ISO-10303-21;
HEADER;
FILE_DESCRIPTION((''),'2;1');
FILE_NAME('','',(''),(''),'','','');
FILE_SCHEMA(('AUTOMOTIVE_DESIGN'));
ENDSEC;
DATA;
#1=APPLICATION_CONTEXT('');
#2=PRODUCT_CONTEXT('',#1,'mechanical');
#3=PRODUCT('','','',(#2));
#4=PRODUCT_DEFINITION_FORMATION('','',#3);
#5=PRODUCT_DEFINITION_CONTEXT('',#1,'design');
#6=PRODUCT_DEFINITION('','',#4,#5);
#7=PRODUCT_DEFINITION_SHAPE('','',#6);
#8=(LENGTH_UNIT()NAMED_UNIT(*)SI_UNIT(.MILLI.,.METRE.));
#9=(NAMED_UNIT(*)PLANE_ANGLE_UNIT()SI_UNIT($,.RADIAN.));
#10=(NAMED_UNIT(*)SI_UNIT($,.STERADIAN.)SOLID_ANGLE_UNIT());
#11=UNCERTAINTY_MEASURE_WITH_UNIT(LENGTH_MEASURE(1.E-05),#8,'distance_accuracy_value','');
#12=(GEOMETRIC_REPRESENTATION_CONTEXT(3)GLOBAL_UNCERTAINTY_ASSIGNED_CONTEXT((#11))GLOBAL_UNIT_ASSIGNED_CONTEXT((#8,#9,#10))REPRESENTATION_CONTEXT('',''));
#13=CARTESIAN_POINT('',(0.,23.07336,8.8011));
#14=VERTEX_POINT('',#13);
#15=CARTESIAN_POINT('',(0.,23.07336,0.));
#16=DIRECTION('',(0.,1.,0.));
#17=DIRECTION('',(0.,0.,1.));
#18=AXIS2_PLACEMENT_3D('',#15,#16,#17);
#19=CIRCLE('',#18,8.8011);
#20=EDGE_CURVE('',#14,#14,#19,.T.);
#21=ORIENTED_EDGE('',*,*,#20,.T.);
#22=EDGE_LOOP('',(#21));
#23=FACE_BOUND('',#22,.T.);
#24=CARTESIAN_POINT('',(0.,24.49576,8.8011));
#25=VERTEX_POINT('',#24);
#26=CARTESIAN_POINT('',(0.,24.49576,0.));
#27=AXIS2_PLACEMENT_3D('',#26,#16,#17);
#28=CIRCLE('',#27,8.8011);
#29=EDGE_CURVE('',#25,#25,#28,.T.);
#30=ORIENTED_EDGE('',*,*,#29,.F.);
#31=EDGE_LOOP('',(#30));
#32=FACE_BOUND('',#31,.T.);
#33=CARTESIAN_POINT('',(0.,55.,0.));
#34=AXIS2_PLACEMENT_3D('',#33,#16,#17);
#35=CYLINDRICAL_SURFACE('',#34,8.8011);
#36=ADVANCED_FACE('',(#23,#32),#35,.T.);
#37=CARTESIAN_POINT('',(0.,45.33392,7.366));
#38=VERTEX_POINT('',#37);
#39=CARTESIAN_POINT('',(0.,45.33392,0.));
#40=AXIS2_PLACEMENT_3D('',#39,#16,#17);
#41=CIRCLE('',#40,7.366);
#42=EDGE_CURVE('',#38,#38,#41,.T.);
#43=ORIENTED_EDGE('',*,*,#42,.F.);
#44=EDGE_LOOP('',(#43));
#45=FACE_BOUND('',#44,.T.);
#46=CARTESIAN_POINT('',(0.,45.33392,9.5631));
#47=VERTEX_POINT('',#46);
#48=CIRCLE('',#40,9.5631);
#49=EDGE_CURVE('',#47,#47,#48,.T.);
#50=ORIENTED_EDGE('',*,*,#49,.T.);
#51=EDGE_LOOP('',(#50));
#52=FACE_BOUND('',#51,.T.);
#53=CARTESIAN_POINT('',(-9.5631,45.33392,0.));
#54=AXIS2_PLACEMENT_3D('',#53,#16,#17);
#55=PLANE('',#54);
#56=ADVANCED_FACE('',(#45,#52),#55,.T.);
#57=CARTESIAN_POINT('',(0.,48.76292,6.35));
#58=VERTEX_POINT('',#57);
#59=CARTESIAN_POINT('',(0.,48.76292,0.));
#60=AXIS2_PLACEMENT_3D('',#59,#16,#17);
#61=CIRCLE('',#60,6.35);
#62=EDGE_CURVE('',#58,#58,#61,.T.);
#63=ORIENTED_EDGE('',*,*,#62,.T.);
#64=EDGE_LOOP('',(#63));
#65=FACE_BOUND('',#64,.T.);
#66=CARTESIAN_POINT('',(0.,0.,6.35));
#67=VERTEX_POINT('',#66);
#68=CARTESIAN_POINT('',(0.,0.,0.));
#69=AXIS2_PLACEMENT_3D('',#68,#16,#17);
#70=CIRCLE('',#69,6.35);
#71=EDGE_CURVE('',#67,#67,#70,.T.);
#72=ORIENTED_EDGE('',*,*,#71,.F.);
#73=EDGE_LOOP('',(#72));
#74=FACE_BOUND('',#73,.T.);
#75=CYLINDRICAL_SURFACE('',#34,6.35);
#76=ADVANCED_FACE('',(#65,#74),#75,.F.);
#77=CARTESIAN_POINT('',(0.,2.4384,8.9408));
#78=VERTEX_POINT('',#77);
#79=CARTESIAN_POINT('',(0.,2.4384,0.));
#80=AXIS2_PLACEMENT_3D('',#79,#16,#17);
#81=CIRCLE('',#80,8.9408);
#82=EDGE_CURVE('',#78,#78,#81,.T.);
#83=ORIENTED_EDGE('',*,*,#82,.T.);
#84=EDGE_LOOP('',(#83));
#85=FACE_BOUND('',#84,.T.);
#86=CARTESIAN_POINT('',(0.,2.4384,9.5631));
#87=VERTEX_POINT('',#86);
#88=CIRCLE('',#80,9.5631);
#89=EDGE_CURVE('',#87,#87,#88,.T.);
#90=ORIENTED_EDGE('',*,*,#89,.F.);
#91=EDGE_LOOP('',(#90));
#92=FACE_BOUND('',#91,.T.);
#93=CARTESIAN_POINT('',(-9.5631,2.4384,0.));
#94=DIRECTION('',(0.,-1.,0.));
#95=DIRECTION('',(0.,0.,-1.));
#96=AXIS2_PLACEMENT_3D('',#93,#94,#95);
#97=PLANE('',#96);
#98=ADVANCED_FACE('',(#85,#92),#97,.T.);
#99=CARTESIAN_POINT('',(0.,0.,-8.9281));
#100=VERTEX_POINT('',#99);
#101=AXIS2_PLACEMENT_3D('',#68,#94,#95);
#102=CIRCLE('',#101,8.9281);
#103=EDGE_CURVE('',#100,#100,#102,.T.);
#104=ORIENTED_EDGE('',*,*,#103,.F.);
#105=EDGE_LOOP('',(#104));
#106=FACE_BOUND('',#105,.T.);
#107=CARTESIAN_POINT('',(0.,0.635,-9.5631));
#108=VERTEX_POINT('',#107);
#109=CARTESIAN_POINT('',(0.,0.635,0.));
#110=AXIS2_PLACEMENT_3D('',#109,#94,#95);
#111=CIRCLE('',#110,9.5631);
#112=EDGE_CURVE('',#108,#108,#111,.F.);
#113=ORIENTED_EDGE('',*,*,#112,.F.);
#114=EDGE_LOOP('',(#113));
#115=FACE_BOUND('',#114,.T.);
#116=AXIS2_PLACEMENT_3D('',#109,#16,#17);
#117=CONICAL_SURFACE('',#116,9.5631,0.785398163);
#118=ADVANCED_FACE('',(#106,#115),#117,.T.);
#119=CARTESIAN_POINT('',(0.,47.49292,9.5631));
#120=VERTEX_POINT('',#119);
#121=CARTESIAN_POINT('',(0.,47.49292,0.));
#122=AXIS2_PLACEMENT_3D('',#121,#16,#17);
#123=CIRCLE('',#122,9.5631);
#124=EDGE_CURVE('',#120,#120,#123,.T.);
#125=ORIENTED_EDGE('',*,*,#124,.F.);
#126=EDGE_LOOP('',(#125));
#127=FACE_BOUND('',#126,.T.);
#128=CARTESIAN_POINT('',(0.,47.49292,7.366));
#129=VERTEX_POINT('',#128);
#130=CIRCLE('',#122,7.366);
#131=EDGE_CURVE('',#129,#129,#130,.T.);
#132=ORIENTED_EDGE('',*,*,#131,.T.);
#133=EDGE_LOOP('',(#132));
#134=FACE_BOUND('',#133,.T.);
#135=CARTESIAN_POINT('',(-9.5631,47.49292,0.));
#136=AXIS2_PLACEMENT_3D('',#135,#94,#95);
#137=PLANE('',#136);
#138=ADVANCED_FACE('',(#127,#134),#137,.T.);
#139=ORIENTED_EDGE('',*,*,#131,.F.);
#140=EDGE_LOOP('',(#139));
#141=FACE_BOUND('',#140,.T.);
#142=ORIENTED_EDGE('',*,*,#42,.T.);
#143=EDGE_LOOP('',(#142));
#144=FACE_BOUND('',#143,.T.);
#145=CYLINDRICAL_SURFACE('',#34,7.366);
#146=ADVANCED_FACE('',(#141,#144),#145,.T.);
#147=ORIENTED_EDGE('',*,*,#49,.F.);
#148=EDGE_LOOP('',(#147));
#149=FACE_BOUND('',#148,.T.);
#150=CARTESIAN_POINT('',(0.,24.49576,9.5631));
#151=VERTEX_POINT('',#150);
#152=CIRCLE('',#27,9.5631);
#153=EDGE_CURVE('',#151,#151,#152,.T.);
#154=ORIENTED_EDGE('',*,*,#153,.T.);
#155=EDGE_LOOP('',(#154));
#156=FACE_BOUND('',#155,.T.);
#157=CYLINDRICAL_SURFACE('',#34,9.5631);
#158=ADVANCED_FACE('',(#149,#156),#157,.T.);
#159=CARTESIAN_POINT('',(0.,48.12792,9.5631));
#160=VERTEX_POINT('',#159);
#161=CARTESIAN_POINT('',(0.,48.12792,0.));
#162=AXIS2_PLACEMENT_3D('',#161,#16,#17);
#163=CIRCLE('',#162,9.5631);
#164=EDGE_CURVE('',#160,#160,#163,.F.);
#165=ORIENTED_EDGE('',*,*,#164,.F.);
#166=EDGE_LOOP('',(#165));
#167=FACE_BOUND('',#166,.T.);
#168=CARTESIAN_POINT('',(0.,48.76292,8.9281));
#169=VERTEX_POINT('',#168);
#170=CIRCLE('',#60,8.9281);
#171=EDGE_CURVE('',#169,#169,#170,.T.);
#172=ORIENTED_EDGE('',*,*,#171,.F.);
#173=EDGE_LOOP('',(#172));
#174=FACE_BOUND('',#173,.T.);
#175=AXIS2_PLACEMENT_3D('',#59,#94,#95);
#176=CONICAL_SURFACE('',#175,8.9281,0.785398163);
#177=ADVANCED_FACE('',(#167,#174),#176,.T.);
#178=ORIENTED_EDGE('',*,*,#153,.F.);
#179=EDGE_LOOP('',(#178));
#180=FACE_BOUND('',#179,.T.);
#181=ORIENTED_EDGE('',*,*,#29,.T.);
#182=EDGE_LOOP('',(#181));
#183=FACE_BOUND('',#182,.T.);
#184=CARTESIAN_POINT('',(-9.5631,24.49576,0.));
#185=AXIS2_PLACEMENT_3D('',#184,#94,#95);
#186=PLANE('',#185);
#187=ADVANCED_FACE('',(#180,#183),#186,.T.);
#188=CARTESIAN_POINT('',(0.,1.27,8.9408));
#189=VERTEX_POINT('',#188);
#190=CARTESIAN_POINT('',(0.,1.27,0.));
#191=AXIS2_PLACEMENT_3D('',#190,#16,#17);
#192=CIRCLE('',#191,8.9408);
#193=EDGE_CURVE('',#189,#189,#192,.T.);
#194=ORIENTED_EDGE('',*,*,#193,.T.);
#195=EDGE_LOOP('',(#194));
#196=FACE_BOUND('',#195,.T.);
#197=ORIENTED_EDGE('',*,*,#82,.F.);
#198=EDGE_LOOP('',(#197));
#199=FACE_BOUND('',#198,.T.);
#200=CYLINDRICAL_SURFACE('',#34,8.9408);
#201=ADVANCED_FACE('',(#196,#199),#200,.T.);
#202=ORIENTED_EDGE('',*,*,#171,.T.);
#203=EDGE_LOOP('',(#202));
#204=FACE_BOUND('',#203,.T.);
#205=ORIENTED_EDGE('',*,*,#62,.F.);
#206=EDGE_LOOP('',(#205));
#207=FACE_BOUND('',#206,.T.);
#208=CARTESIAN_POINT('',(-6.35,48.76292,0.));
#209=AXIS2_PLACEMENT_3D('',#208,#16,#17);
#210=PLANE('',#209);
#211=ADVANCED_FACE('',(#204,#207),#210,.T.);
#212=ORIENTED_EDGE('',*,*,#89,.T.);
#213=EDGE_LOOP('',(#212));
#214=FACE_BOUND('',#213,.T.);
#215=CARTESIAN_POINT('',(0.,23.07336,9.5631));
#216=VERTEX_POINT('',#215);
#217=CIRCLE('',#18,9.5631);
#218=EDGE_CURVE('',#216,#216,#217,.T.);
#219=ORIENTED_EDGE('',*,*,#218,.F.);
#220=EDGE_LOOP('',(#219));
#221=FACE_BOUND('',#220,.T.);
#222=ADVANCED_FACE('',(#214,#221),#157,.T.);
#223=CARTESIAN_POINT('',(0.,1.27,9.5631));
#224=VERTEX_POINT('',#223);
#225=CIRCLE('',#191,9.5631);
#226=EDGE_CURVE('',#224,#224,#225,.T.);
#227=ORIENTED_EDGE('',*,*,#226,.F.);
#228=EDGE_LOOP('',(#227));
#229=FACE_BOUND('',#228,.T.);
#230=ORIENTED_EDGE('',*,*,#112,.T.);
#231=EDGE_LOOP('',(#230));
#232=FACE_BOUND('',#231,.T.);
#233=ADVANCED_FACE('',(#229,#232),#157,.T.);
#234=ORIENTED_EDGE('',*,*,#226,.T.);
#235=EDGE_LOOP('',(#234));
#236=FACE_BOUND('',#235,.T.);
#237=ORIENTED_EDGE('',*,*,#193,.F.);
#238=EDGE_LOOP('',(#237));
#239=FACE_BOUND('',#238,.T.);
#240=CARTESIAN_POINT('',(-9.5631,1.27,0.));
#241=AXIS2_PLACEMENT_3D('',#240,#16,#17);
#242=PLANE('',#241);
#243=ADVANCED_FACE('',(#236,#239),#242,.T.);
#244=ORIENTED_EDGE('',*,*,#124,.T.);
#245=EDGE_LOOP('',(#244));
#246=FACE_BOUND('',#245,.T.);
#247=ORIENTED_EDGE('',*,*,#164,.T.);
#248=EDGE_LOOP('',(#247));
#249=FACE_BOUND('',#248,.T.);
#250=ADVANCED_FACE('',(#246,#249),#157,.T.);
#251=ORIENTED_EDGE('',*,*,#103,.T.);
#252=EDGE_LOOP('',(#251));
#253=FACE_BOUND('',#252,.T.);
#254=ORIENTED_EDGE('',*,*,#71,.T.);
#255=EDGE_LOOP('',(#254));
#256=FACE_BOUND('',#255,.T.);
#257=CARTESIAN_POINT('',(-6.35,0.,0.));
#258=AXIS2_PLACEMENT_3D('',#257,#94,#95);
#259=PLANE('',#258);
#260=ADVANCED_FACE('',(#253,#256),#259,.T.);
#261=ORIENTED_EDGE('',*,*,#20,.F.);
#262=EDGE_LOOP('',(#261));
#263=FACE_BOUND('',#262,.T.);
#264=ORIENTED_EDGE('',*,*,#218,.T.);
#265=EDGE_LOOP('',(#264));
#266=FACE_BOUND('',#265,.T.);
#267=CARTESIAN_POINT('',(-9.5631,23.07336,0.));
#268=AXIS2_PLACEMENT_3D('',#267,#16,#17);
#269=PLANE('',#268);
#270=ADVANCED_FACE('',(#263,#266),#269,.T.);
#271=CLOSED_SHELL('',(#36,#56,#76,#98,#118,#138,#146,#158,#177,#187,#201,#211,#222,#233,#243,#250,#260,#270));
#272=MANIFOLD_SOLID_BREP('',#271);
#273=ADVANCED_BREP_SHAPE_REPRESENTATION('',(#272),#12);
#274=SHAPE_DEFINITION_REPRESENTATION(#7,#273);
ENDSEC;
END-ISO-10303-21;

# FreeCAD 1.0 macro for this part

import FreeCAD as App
import Part
import Sketcher
Q = App.Units.Quantity


def edges_at(feature, points):
    """Names of the edges that pass closest to the given points."""
    edges = feature.Shape.Edges
    near = lambda p: min(range(len(edges)), key=lambda i: edges[i].distToShape(Part.Vertex(*p))[0])
    return sorted({f"Edge{near(p) + 1}" for p in points})


def add_polygon(sketch, points):
    """Adds a closed chain of lines whose ends are joined by coincident constraints."""
    first, n = sketch.GeometryCount, len(points)
    for a, b in zip(points, points[1:] + points[:1]):
        sketch.addGeometry(Part.LineSegment(App.Vector(*a, 0), App.Vector(*b, 0)), False)
    for i in range(n):
        sketch.addConstraint(Sketcher.Constraint("Coincident", first + i, 2, first + (i + 1) % n, 1))

doc = App.newDocument("Part")
body = doc.addObject("PartDesign::Body", "Body")

sketch1 = body.newObject("Sketcher::SketchObject", "Sketch")
sketch1.AttachmentSupport = (doc.getObject("XY_Plane"), [""])
sketch1.MapMode = "FlatFace"
add_polygon(sketch1, [(-9.5631, 45.33392), (-9.5631, 24.49576), (-8.8011, 24.49576), (-8.8011, 23.07336), (-9.5631, 23.07336), (-9.5631, 2.4384), (-8.9408, 2.4384), (-8.9408, 1.27), (-9.5631, 1.27), (-9.5631, 0), (-6.35, 0), (-6.35, 48.76292), (-9.5631, 48.76292), (-9.5631, 47.49292), (-7.366, 47.49292), (-7.366, 45.33392)])
sketch1.addConstraint([
    Sketcher.Constraint("Vertical", 0),
    Sketcher.Constraint("Horizontal", 1),
    Sketcher.Constraint("Vertical", 2),
    Sketcher.Constraint("Horizontal", 3),
    Sketcher.Constraint("Vertical", 4),
    Sketcher.Constraint("Horizontal", 5),
    Sketcher.Constraint("Vertical", 6),
    Sketcher.Constraint("Horizontal", 7),
    Sketcher.Constraint("Vertical", 8),
    Sketcher.Constraint("Horizontal", 9),
    Sketcher.Constraint("Vertical", 10),
    Sketcher.Constraint("Horizontal", 11),
    Sketcher.Constraint("Vertical", 12),
    Sketcher.Constraint("Horizontal", 13),
    Sketcher.Constraint("Vertical", 14),
    Sketcher.Constraint("Horizontal", 15),
    Sketcher.Constraint("PointOnObject", 8, 2, -1),
    Sketcher.Constraint("Vertical", 0, 2, 3, 2),
    Sketcher.Constraint("Vertical", 4, 2, 7, 2),
    Sketcher.Constraint("Vertical", 8, 2, 11, 2),
    Sketcher.Constraint("Equal", 8, 12),
    Sketcher.Constraint("DistanceX", 1, 1, 1, 2, Q("0.03 in")),
    Sketcher.Constraint("DistanceY", 8, 2, 8, 1, Q("0.05 in")),
    Sketcher.Constraint("DistanceY", 2, 2, 2, 1, Q("0.056 in")),
    Sketcher.Constraint("DistanceY", 6, 2, 6, 1, Q("0.046 in")),
    Sketcher.Constraint("DistanceY", 14, 2, 14, 1, Q("0.085 in")),
    Sketcher.Constraint("DistanceX", 9, 2, -1, 1, Q("0.25 in")),
    Sketcher.Constraint("DistanceX", 13, 2, -1, 1, Q("0.29 in")),
    Sketcher.Constraint("DistanceX", 5, 1, 5, 2, Q("0.0245 in")),
    Sketcher.Constraint("DistanceX", 9, 1, 9, 2, Q("0.1265 in")),
    Sketcher.Constraint("DistanceY", 0, 2, 0, 1, Q("0.8204 in")),
    Sketcher.Constraint("DistanceY", 4, 2, 4, 1, Q("0.8124 in")),
])
revolution = body.newObject("PartDesign::Revolution", "Revolution")
revolution.Profile = sketch1
revolution.ReferenceAxis = (sketch1, ["V_Axis"])
revolution.Angle = 360
doc.recompute()

chamfer = body.newObject("PartDesign::Chamfer", "Chamfer")
chamfer.Base = (revolution, edges_at(revolution, [(9.563, 0, 0), (9.563, 48.763, 0)]))
chamfer.Size = Q("0.025 in")

doc.recompute()
